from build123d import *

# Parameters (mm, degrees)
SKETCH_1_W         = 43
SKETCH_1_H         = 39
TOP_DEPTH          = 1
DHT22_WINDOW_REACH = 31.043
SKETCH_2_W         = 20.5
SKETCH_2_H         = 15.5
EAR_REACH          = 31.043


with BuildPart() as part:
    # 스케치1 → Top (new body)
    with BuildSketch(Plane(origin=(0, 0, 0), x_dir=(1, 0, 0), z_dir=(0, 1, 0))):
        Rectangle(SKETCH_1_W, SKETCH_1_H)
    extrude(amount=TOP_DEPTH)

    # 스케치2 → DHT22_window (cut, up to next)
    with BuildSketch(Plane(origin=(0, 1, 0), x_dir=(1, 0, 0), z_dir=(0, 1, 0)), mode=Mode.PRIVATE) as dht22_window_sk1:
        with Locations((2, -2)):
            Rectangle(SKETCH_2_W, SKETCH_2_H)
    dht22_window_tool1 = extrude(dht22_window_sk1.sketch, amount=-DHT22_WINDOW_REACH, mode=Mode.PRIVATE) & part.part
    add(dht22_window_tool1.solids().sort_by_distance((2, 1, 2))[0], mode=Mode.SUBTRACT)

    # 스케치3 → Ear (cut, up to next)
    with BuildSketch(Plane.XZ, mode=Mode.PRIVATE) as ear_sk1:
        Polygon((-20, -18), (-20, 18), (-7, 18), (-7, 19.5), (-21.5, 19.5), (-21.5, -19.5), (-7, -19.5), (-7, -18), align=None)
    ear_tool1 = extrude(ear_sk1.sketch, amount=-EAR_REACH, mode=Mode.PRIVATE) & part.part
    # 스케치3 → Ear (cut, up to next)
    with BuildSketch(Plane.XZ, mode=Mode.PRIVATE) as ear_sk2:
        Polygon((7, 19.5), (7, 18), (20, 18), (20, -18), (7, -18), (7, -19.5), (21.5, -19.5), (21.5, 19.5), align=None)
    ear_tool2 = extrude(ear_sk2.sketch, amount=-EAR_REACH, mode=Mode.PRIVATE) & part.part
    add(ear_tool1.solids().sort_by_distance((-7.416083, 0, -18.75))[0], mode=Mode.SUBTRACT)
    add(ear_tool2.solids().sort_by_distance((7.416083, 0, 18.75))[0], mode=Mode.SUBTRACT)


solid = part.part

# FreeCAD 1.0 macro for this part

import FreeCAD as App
import Part
import Sketcher

doc = App.newDocument("Part")
body = doc.addObject("PartDesign::Body", "Body")

# Sketch on XZ plane
sketch1 = doc.addObject("Sketcher::SketchObject", "Sketch")
body.addObject(sketch1)
sketch1.AttachmentSupport = (doc.XZ_Plane, [""])
sketch1.MapMode = "FlatFace"
sketch1.addGeometry(Part.LineSegment(App.Vector(-22, -20, 0), App.Vector(-22, 20, 0)), False)
sketch1.addGeometry(Part.LineSegment(App.Vector(-22, 20, 0), App.Vector(22, 20, 0)), False)
sketch1.addGeometry(Part.LineSegment(App.Vector(22, 20, 0), App.Vector(22, -20, 0)), False)
sketch1.addGeometry(Part.LineSegment(App.Vector(22, -20, 0), App.Vector(-22, -20, 0)), False)
sketch1.addConstraint(Sketcher.Constraint("Coincident", 0, 2, 1, 1))
sketch1.addConstraint(Sketcher.Constraint("Coincident", 1, 2, 2, 1))
sketch1.addConstraint(Sketcher.Constraint("Coincident", 2, 2, 3, 1))
sketch1.addConstraint(Sketcher.Constraint("Coincident", 3, 2, 0, 1))
sketch1.addConstraint(Sketcher.Constraint("Vertical", 0))
sketch1.addConstraint(Sketcher.Constraint("Horizontal", 1))
sketch1.addConstraint(Sketcher.Constraint("Vertical", 2))
sketch1.addConstraint(Sketcher.Constraint("Horizontal", 3))
sketch1.addConstraint(Sketcher.Constraint("Symmetric", 0, 2, 2, 2, -1, 1))
sketch1.addConstraint(Sketcher.Constraint("DistanceX", 1, 1, 1, 2, 43.0))
sketch1.addConstraint(Sketcher.Constraint("DistanceY", 0, 1, 0, 2, 39.0))
pad1 = doc.addObject("PartDesign::Pad", "Pad")
body.addObject(pad1)
pad1.Profile = sketch1
pad1.Length = 1
pad1.Reversed = True

# Sketch on XZ plane
sketch2 = doc.addObject("Sketcher::SketchObject", "Sketch001")
body.addObject(sketch2)
sketch2.AttachmentSupport = (doc.XZ_Plane, [""])
sketch2.MapMode = "FlatFace"
sketch2.AttachmentOffset = App.Placement(App.Vector(0, 0, -1), App.Rotation())
sketch2.addGeometry(Part.LineSegment(App.Vector(-8, -6, 0), App.Vector(-8, 10, 0)), False)
sketch2.addGeometry(Part.LineSegment(App.Vector(-8, 10, 0), App.Vector(12, 10, 0)), False)
sketch2.addGeometry(Part.LineSegment(App.Vector(12, 10, 0), App.Vector(12, -6, 0)), False)
sketch2.addGeometry(Part.LineSegment(App.Vector(12, -6, 0), App.Vector(-8, -6, 0)), False)
sketch2.addConstraint(Sketcher.Constraint("Coincident", 0, 2, 1, 1))
sketch2.addConstraint(Sketcher.Constraint("Coincident", 1, 2, 2, 1))
sketch2.addConstraint(Sketcher.Constraint("Coincident", 2, 2, 3, 1))
sketch2.addConstraint(Sketcher.Constraint("Coincident", 3, 2, 0, 1))
sketch2.addConstraint(Sketcher.Constraint("Vertical", 0))
sketch2.addConstraint(Sketcher.Constraint("Horizontal", 1))
sketch2.addConstraint(Sketcher.Constraint("Vertical", 2))
sketch2.addConstraint(Sketcher.Constraint("Horizontal", 3))
sketch2.addConstraint(Sketcher.Constraint("DistanceX", 1, 1, 1, 2, 20.5))
sketch2.addConstraint(Sketcher.Constraint("DistanceY", 0, 1, 0, 2, 15.5))
sketch2.addConstraint(Sketcher.Constraint("DistanceX", 0, 2, -1, 1, 8.25))
sketch2.addConstraint(Sketcher.Constraint("DistanceY", -1, 1, 0, 2, 9.75))
pocket1 = doc.addObject("PartDesign::Pocket", "Pocket")
body.addObject(pocket1)
pocket1.Profile = sketch2
pocket1.Type = "UpToFirst"
pocket1.Reversed = True

# Sketch on XZ plane
sketch3 = doc.addObject("Sketcher::SketchObject", "Sketch002")
body.addObject(sketch3)
sketch3.AttachmentSupport = (doc.XZ_Plane, [""])
sketch3.MapMode = "FlatFace"
sketch3.addGeometry(Part.LineSegment(App.Vector(-20, -18, 0), App.Vector(-20, 18, 0)), False)
sketch3.addGeometry(Part.LineSegment(App.Vector(-20, 18, 0), App.Vector(-7, 18, 0)), False)
sketch3.addGeometry(Part.LineSegment(App.Vector(-7, 18, 0), App.Vector(-7, 19.5, 0)), False)
sketch3.addGeometry(Part.LineSegment(App.Vector(-7, 19.5, 0), App.Vector(-21.5, 19.5, 0)), False)
sketch3.addGeometry(Part.LineSegment(App.Vector(-21.5, 19.5, 0), App.Vector(-21.5, -19.5, 0)), False)
sketch3.addGeometry(Part.LineSegment(App.Vector(-21.5, -19.5, 0), App.Vector(-7, -19.5, 0)), False)
sketch3.addGeometry(Part.LineSegment(App.Vector(-7, -19.5, 0), App.Vector(-7, -18, 0)), False)
sketch3.addGeometry(Part.LineSegment(App.Vector(-7, -18, 0), App.Vector(-20, -18, 0)), False)
sketch3.addConstraint(Sketcher.Constraint("Coincident", 0, 2, 1, 1))
sketch3.addConstraint(Sketcher.Constraint("Coincident", 1, 2, 2, 1))
sketch3.addConstraint(Sketcher.Constraint("Coincident", 2, 2, 3, 1))
sketch3.addConstraint(Sketcher.Constraint("Coincident", 3, 2, 4, 1))
sketch3.addConstraint(Sketcher.Constraint("Coincident", 4, 2, 5, 1))
sketch3.addConstraint(Sketcher.Constraint("Coincident", 5, 2, 6, 1))
sketch3.addConstraint(Sketcher.Constraint("Coincident", 6, 2, 7, 1))
sketch3.addConstraint(Sketcher.Constraint("Coincident", 7, 2, 0, 1))
sketch3.addConstraint(Sketcher.Constraint("Vertical", 0))
sketch3.addConstraint(Sketcher.Constraint("Horizontal", 1))
sketch3.addConstraint(Sketcher.Constraint("Vertical", 2))
sketch3.addConstraint(Sketcher.Constraint("Horizontal", 3))
sketch3.addConstraint(Sketcher.Constraint("Vertical", 4))
sketch3.addConstraint(Sketcher.Constraint("Horizontal", 5))
sketch3.addConstraint(Sketcher.Constraint("Vertical", 6))
sketch3.addConstraint(Sketcher.Constraint("Horizontal", 7))
sketch3.addConstraint(Sketcher.Constraint("Symmetric", 2, 2, 5, 2, -1))
sketch3.addConstraint(Sketcher.Constraint("Equal", 2, 6))
sketch3.addConstraint(Sketcher.Constraint("DistanceX", 1, 1, 1, 2, 13.0))
sketch3.addConstraint(Sketcher.Constraint("DistanceY", 0, 1, 0, 2, 36.0))
sketch3.addConstraint(Sketcher.Constraint("DistanceY", 4, 2, 4, 1, 39.0))
sketch3.addConstraint(Sketcher.Constraint("DistanceX", 3, 2, 3, 1, 14.5))
sketch3.addConstraint(Sketcher.Constraint("DistanceX", 0, 2, -1, 1, 20.0))
pocket2 = doc.addObject("PartDesign::Pocket", "Pocket001")
body.addObject(pocket2)
pocket2.Profile = sketch3
pocket2.Type = "UpToFirst"

# Sketch on XZ plane
sketch4 = doc.addObject("Sketcher::SketchObject", "Sketch003")
body.addObject(sketch4)
sketch4.AttachmentSupport = (doc.XZ_Plane, [""])
sketch4.MapMode = "FlatFace"
sketch4.addGeometry(Part.LineSegment(App.Vector(7, 19.5, 0), App.Vector(7, 18, 0)), False)
sketch4.addGeometry(Part.LineSegment(App.Vector(7, 18, 0), App.Vector(20, 18, 0)), False)
sketch4.addGeometry(Part.LineSegment(App.Vector(20, 18, 0), App.Vector(20, -18, 0)), False)
sketch4.addGeometry(Part.LineSegment(App.Vector(20, -18, 0), App.Vector(7, -18, 0)), False)
sketch4.addGeometry(Part.LineSegment(App.Vector(7, -18, 0), App.Vector(7, -19.5, 0)), False)
sketch4.addGeometry(Part.LineSegment(App.Vector(7, -19.5, 0), App.Vector(21.5, -19.5, 0)), False)
sketch4.addGeometry(Part.LineSegment(App.Vector(21.5, -19.5, 0), App.Vector(21.5, 19.5, 0)), False)
sketch4.addGeometry(Part.LineSegment(App.Vector(21.5, 19.5, 0), App.Vector(7, 19.5, 0)), False)
sketch4.addConstraint(Sketcher.Constraint("Coincident", 0, 2, 1, 1))
sketch4.addConstraint(Sketcher.Constraint("Coincident", 1, 2, 2, 1))
sketch4.addConstraint(Sketcher.Constraint("Coincident", 2, 2, 3, 1))
sketch4.addConstraint(Sketcher.Constraint("Coincident", 3, 2, 4, 1))
sketch4.addConstraint(Sketcher.Constraint("Coincident", 4, 2, 5, 1))
sketch4.addConstraint(Sketcher.Constraint("Coincident", 5, 2, 6, 1))
sketch4.addConstraint(Sketcher.Constraint("Coincident", 6, 2, 7, 1))
sketch4.addConstraint(Sketcher.Constraint("Coincident", 7, 2, 0, 1))
sketch4.addConstraint(Sketcher.Constraint("Vertical", 0))
sketch4.addConstraint(Sketcher.Constraint("Horizontal", 1))
sketch4.addConstraint(Sketcher.Constraint("Vertical", 2))
sketch4.addConstraint(Sketcher.Constraint("Horizontal", 3))
sketch4.addConstraint(Sketcher.Constraint("Vertical", 4))
sketch4.addConstraint(Sketcher.Constraint("Horizontal", 5))
sketch4.addConstraint(Sketcher.Constraint("Vertical", 6))
sketch4.addConstraint(Sketcher.Constraint("Horizontal", 7))
sketch4.addConstraint(Sketcher.Constraint("Symmetric", 0, 2, 3, 2, -1))
sketch4.addConstraint(Sketcher.Constraint("Equal", 0, 4))
sketch4.addConstraint(Sketcher.Constraint("DistanceX", 1, 1, 1, 2, 13.0))
sketch4.addConstraint(Sketcher.Constraint("DistanceY", 2, 2, 2, 1, 36.0))
sketch4.addConstraint(Sketcher.Constraint("DistanceY", 6, 1, 6, 2, 39.0))
sketch4.addConstraint(Sketcher.Constraint("DistanceX", 5, 1, 5, 2, 14.5))
sketch4.addConstraint(Sketcher.Constraint("DistanceX", -1, 1, 0, 2, 7.0))
pocket3 = doc.addObject("PartDesign::Pocket", "Pocket002")
body.addObject(pocket3)
pocket3.Profile = sketch4
pocket3.Type = "UpToFirst"

doc.recompute()
